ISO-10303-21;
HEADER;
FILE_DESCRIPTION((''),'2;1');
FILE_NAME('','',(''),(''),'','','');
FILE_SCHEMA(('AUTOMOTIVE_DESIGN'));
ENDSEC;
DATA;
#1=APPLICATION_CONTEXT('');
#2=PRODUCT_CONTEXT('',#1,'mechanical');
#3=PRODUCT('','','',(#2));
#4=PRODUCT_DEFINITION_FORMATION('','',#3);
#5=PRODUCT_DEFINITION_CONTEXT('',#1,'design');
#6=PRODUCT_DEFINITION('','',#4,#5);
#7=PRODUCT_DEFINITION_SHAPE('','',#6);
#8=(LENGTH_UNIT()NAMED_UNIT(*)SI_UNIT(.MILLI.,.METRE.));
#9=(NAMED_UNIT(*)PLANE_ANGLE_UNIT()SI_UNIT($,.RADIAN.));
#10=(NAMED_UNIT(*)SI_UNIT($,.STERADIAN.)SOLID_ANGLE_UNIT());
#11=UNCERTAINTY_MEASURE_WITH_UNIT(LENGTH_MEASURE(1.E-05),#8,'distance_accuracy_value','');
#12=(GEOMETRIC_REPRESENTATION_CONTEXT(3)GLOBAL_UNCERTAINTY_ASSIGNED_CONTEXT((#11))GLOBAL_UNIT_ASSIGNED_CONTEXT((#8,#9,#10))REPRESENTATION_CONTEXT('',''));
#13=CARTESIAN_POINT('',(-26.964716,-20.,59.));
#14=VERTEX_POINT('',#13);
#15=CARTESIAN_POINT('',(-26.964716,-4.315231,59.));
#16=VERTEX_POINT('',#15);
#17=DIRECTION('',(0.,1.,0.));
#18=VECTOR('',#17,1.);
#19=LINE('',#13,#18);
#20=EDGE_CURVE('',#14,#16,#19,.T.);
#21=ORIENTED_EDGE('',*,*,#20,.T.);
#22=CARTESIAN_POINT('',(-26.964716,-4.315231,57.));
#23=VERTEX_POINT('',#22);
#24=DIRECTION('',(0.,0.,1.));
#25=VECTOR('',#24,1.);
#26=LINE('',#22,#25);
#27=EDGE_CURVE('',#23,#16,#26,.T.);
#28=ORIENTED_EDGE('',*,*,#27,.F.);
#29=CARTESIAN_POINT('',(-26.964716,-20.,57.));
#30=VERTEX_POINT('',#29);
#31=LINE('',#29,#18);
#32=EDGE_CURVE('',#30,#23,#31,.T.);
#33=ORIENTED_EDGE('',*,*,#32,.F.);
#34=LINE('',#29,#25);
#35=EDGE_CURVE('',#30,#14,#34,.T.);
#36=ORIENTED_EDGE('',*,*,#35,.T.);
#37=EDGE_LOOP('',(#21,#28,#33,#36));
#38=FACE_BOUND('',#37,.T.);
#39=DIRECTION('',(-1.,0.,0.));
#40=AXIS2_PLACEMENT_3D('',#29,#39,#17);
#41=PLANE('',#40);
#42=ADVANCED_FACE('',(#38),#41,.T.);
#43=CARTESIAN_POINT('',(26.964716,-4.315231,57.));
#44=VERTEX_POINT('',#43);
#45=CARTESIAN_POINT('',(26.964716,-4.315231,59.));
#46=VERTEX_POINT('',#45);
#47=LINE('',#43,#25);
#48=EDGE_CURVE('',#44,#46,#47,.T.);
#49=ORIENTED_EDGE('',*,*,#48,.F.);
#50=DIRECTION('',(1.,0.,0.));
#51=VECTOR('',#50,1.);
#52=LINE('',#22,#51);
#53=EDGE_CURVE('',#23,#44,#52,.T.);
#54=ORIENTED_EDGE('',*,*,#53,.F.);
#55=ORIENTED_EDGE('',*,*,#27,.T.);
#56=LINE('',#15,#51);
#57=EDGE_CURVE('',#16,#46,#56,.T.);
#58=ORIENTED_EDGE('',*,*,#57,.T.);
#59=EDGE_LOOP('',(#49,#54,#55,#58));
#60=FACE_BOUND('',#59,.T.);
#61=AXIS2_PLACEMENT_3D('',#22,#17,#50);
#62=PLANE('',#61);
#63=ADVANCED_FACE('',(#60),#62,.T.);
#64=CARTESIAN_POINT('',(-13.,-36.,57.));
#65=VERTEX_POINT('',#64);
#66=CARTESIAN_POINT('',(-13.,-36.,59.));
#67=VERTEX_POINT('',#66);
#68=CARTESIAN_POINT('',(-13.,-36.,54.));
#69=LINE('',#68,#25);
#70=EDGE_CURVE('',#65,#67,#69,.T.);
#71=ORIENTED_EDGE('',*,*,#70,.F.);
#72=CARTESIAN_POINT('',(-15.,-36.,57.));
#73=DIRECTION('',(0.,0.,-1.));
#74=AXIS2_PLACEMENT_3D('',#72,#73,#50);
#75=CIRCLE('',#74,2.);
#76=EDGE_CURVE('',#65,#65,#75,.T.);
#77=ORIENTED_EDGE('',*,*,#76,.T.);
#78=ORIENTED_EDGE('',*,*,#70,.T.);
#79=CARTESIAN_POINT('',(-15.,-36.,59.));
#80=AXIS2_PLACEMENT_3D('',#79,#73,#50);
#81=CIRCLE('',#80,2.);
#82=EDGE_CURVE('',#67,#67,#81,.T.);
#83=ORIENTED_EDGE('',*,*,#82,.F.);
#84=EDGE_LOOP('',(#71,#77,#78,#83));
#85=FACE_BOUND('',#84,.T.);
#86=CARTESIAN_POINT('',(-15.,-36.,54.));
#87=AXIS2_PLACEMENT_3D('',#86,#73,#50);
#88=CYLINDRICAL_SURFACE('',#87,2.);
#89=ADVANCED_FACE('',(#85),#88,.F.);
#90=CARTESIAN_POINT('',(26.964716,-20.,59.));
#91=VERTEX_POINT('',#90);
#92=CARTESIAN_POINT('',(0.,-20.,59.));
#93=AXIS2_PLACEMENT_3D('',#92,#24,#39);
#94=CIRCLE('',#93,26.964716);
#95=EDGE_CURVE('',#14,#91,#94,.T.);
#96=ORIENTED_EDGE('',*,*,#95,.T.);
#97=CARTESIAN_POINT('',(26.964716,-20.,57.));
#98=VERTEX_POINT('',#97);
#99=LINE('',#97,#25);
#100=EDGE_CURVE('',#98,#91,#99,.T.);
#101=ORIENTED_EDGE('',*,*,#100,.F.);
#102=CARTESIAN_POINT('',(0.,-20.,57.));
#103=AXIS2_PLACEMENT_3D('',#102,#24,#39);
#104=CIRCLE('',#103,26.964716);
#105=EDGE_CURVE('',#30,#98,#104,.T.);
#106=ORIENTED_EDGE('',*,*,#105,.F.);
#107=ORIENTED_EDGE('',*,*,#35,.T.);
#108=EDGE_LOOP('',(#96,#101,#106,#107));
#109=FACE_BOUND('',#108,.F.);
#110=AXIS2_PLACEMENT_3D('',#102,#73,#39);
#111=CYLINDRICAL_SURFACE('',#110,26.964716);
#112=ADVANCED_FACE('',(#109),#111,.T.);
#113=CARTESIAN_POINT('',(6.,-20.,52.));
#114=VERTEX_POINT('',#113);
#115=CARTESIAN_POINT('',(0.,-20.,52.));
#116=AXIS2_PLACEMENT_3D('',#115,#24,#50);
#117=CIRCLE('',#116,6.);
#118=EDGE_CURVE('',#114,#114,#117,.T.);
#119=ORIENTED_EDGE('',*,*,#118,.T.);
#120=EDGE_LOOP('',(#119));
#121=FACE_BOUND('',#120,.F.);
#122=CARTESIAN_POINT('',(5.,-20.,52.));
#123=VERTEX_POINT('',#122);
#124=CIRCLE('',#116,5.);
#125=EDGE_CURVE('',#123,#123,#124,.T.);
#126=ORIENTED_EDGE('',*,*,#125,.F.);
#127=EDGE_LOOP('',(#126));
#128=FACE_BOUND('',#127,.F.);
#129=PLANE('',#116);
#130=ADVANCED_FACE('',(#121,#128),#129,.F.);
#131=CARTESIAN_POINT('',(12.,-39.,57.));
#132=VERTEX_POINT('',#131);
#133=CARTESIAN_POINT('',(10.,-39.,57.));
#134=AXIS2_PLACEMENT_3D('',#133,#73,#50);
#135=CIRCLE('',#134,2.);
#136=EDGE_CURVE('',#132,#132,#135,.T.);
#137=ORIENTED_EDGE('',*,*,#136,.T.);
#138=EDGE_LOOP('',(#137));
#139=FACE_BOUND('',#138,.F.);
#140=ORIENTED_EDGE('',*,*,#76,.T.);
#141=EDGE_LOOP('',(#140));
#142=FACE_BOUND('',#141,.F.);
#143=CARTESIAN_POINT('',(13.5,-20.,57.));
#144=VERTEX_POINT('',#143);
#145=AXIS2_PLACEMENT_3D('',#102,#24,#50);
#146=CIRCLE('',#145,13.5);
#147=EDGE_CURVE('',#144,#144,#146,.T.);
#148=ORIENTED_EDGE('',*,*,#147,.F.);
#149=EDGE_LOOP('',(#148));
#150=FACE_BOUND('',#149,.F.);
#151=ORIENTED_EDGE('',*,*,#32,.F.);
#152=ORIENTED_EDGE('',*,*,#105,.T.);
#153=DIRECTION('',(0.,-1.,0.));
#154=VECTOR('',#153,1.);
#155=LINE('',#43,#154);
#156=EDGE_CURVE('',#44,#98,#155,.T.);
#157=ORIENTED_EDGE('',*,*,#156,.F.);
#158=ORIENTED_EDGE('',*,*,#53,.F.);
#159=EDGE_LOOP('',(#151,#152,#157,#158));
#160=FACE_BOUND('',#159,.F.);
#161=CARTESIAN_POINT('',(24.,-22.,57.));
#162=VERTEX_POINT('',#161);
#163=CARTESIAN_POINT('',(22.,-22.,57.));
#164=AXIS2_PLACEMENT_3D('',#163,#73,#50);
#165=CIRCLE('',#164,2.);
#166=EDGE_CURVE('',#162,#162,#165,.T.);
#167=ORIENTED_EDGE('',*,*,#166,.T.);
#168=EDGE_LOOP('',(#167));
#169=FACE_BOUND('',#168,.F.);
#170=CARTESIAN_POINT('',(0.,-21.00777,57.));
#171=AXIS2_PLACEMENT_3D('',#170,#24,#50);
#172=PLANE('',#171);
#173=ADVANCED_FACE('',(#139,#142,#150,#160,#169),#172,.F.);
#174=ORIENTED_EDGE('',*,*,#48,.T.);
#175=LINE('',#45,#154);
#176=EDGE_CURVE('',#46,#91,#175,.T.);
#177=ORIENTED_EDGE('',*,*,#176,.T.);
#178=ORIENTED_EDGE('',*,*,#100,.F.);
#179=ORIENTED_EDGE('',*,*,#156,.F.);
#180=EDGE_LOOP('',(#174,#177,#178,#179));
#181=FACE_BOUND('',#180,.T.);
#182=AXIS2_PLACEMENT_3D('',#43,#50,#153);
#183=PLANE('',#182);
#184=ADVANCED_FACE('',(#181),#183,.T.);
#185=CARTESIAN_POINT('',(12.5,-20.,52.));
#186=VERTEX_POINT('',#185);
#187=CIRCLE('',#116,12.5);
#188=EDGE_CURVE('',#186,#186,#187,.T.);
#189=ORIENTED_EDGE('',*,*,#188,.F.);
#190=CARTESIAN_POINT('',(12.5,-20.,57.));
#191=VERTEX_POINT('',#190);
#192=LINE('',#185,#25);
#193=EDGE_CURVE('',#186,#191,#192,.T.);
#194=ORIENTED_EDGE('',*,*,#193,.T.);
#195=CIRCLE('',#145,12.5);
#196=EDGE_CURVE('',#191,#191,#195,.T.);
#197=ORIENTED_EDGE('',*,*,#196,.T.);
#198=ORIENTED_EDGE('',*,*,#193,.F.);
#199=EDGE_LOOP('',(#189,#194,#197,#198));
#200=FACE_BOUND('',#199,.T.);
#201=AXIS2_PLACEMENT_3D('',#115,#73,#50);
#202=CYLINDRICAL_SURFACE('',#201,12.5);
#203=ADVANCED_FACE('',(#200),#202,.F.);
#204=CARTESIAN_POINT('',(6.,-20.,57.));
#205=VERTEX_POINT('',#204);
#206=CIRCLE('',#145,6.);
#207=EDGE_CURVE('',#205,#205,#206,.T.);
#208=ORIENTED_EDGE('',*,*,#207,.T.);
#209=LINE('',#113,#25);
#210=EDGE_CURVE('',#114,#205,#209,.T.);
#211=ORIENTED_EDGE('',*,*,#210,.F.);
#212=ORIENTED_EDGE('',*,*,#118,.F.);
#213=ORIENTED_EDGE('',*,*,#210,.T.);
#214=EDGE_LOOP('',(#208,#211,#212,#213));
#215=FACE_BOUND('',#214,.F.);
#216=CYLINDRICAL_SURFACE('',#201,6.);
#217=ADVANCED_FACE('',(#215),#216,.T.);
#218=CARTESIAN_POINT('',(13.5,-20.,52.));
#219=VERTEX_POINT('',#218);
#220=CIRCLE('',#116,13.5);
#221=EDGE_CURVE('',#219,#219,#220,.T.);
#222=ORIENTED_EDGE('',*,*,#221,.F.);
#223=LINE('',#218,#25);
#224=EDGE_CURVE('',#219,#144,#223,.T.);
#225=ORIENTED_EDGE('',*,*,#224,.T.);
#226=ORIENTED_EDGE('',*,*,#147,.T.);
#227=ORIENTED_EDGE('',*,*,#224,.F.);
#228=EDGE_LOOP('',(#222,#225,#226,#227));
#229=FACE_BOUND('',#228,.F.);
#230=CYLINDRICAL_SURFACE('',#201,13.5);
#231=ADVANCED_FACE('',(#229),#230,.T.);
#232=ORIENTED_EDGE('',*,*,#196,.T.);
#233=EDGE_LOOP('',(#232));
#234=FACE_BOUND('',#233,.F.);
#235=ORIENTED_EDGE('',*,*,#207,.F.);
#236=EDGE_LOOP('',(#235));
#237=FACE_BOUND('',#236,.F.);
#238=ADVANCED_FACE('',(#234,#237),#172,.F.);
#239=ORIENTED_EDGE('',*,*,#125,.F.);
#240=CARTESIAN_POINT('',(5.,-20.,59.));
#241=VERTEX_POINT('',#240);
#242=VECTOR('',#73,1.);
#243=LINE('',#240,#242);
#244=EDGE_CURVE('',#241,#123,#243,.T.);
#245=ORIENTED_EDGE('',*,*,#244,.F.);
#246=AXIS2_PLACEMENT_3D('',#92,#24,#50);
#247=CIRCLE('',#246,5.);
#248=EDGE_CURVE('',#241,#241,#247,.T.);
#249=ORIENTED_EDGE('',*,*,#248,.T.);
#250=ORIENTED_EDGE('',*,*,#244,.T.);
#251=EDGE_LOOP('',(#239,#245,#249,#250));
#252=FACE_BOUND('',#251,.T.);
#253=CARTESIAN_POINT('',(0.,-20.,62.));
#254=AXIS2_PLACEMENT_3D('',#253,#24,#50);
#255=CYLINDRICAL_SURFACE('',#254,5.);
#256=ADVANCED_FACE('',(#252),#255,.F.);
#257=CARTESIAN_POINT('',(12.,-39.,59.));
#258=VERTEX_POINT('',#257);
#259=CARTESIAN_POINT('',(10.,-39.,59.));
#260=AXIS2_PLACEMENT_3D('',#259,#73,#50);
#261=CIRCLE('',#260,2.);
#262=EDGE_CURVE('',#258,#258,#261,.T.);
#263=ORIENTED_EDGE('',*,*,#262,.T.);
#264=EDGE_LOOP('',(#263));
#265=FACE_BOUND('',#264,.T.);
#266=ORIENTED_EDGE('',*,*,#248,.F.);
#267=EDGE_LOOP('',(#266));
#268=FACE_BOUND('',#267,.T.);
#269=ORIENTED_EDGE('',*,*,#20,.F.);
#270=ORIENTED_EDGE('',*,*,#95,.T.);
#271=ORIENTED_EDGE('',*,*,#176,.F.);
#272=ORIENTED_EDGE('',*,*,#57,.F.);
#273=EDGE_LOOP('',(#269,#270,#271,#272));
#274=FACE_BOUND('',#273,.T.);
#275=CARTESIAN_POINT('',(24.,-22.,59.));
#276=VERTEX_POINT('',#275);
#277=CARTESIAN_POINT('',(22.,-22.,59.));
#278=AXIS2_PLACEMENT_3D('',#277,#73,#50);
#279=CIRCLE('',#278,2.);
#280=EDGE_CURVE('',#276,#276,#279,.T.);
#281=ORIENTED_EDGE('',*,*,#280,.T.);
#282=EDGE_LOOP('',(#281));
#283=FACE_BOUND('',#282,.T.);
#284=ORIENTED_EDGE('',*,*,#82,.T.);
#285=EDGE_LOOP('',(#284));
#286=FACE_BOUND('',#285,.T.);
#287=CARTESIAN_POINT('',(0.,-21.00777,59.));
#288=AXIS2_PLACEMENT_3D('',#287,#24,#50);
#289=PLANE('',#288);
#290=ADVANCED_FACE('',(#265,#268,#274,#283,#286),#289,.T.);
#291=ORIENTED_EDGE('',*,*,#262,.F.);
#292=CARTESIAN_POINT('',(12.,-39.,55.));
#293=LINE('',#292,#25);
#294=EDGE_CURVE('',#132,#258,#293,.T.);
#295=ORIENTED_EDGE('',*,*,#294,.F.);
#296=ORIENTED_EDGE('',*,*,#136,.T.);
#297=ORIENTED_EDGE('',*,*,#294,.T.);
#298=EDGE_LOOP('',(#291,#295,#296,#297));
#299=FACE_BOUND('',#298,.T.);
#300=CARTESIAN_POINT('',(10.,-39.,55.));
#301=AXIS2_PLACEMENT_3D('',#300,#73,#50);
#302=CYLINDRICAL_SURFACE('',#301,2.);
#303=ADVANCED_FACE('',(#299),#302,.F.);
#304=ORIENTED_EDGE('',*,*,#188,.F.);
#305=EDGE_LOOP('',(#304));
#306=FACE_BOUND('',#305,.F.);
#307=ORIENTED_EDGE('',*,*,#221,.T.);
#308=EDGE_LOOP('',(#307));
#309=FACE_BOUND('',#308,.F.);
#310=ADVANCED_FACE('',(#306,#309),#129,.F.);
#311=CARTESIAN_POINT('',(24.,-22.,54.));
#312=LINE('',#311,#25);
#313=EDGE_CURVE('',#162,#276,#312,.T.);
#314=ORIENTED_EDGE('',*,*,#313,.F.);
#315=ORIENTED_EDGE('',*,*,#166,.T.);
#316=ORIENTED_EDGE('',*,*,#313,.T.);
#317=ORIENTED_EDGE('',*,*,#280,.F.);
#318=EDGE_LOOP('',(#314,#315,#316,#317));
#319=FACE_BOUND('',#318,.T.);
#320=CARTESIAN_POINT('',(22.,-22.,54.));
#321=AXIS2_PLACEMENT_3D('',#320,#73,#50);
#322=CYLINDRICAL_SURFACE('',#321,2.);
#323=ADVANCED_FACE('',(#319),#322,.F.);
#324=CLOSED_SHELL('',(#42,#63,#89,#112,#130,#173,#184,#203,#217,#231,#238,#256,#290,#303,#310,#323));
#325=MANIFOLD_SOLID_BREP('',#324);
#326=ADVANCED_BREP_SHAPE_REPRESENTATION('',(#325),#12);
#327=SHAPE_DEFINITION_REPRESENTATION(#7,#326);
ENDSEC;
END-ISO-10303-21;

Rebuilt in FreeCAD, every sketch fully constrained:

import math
import FreeCAD as App
import Part
import Sketcher
from FreeCAD import Vector
Q = App.Units.Quantity

doc = App.newDocument("Part")
params = doc.addObject("Spreadsheet::Sheet", "Params")
for row, (alias, value) in enumerate([
    ("sketch1_diameter", "10 mm"),
    ("pad1_length", "10 mm"),
    ("sketch2_diameter", "4 mm"),
    ("pad2_length", "10 mm"),
    ("sketch3_diameter", "4 mm"),
    ("pad3_length", "10 mm"),
    ("sketch4_diameter", "4 mm"),
    ("pad4_length", "10 mm"),
    ("pad5_length", "2 mm"),
    ("sketch6_diameter", "27 mm"),
    ("sketch6_diameter2", "25 mm"),
    ("sketch6_diameter3", "12 mm"),
    ("sketch6_diameter4", "10 mm"),
    ("pad6_length", "5 mm"),
], start=1):
    params.set(f"A{row}", alias)
    params.set(f"B{row}", "=" + value)
    params.setAlias(f"B{row}", alias)

body = doc.addObject("PartDesign::Body", "Body")

sketch1 = body.newObject("Sketcher::SketchObject", "Sketch")
sketch1.AttachmentSupport = (doc.getObject("XY_Plane"), [""])
sketch1.MapMode = "FlatFace"
sketch1.AttachmentOffset = App.Placement(Vector(0, 0, 62), App.Rotation())
sketch1.addGeometry(Part.Circle(Vector(0, -20, 0), Vector(0, 0, 1), 5), False)
sketch1.addConstraint(Sketcher.Constraint("PointOnObject", 0, 3, -2))
sketch1.addConstraint(Sketcher.Constraint("Diameter", 0, Q("10 mm")))
sketch1.addConstraint(Sketcher.Constraint("DistanceY", 0, 3, -1, 1, Q("20 mm")))
sketch1.setExpression("Constraints[1]", "Params.sketch1_diameter")
pad1 = body.newObject("PartDesign::Pad", "Pad")
pad1.Profile = sketch1
pad1.setExpression("Length", "Params.pad1_length")
pad1.Reversed = True
body2 = doc.addObject("PartDesign::Body", "Body001")

sketch2 = body2.newObject("Sketcher::SketchObject", "Sketch001")
sketch2.AttachmentSupport = (doc.getObject("XY_Plane001"), [""])
sketch2.MapMode = "FlatFace"
sketch2.AttachmentOffset = App.Placement(Vector(0, 0, 55), App.Rotation())
sketch2.addGeometry(Part.Circle(Vector(10, -39, 0), Vector(0, 0, 1), 2), False)
sketch2.addConstraint(Sketcher.Constraint("Diameter", 0, Q("4 mm")))
sketch2.addConstraint(Sketcher.Constraint("DistanceX", -1, 1, 0, 3, Q("10 mm")))
sketch2.addConstraint(Sketcher.Constraint("DistanceY", 0, 3, -1, 1, Q("39 mm")))
sketch2.setExpression("Constraints[0]", "Params.sketch2_diameter")
pad2 = body2.newObject("PartDesign::Pad", "Pad001")
pad2.Profile = sketch2
pad2.setExpression("Length", "Params.pad2_length")
body3 = doc.addObject("PartDesign::Body", "Body002")

sketch3 = body3.newObject("Sketcher::SketchObject", "Sketch002")
sketch3.AttachmentSupport = (doc.getObject("XY_Plane002"), [""])
sketch3.MapMode = "FlatFace"
sketch3.AttachmentOffset = App.Placement(Vector(0, 0, 54), App.Rotation())
sketch3.addGeometry(Part.Circle(Vector(-15, -36, 0), Vector(0, 0, 1), 2), False)
sketch3.addConstraint(Sketcher.Constraint("Diameter", 0, Q("4 mm")))
sketch3.addConstraint(Sketcher.Constraint("DistanceX", 0, 3, -1, 1, Q("15 mm")))
sketch3.addConstraint(Sketcher.Constraint("DistanceY", 0, 3, -1, 1, Q("36 mm")))
sketch3.setExpression("Constraints[0]", "Params.sketch3_diameter")
pad3 = body3.newObject("PartDesign::Pad", "Pad002")
pad3.Profile = sketch3
pad3.setExpression("Length", "Params.pad3_length")
body4 = doc.addObject("PartDesign::Body", "Body003")

sketch4 = body4.newObject("Sketcher::SketchObject", "Sketch003")
sketch4.AttachmentSupport = (doc.getObject("XY_Plane003"), [""])
sketch4.MapMode = "FlatFace"
sketch4.AttachmentOffset = App.Placement(Vector(0, 0, 54), App.Rotation())
sketch4.addGeometry(Part.Circle(Vector(22, -22, 0), Vector(0, 0, 1), 2), False)
sketch4.addConstraint(Sketcher.Constraint("Diameter", 0, Q("4 mm")))
sketch4.addConstraint(Sketcher.Constraint("DistanceX", -1, 1, 0, 3, Q("22 mm")))
sketch4.addConstraint(Sketcher.Constraint("DistanceY", 0, 3, -1, 1, Q("22 mm")))
sketch4.setExpression("Constraints[0]", "Params.sketch4_diameter")
pad4 = body4.newObject("PartDesign::Pad", "Pad003")
pad4.Profile = sketch4
pad4.setExpression("Length", "Params.pad4_length")
body5 = doc.addObject("PartDesign::Body", "Body004")

sketch5 = body5.newObject("Sketcher::SketchObject", "Sketch004")
sketch5.AttachmentSupport = (doc.getObject("XY_Plane004"), [""])
sketch5.MapMode = "FlatFace"
sketch5.AttachmentOffset = App.Placement(Vector(0, 0, 57), App.Rotation())
sketch5.addGeometry(Part.ArcOfCircle(Part.Circle(Vector(0, -20, 0), Vector(0, 0, 1), 27), math.radians(180), math.radians(360)), False)
sketch5.addGeometry(Part.LineSegment(Vector(27, -20, 0), Vector(27, -4, 0)), False)
sketch5.addGeometry(Part.LineSegment(Vector(27, -4, 0), Vector(-27, -4, 0)), False)
sketch5.addGeometry(Part.LineSegment(Vector(-27, -4, 0), Vector(-27, -20, 0)), False)
sketch5.addConstraint(Sketcher.Constraint("Tangent", 0, 2, 1, 1))
sketch5.addConstraint(Sketcher.Constraint("Coincident", 1, 2, 2, 1))
sketch5.addConstraint(Sketcher.Constraint("Coincident", 2, 2, 3, 1))
sketch5.addConstraint(Sketcher.Constraint("Tangent", 3, 2, 0, 1))
sketch5.addConstraint(Sketcher.Constraint("Vertical", 1))
sketch5.addConstraint(Sketcher.Constraint("Horizontal", 2))
sketch5.addConstraint(Sketcher.Constraint("Vertical", 3))
sketch5.addConstraint(Sketcher.Constraint("PointOnObject", 0, 3, -2))
sketch5.addConstraint(Sketcher.Constraint("DistanceY", 0, 3, -1, 1, Q("20 mm")))
sketch5.addConstraint(Sketcher.Constraint("Radius", 0, Q("26.964716 mm")))
sketch5.addConstraint(Sketcher.Constraint("DistanceY", 1, 1, 1, 2, Q("15.684769 mm")))
pad5 = body5.newObject("PartDesign::Pad", "Pad004")
pad5.Profile = sketch5
pad5.setExpression("Length", "Params.pad5_length")
body6 = doc.addObject("PartDesign::Body", "Body005")
body6.AllowCompound = True

sketch6 = body6.newObject("Sketcher::SketchObject", "Sketch005")
sketch6.AttachmentSupport = (doc.getObject("XY_Plane005"), [""])
sketch6.MapMode = "FlatFace"
sketch6.AttachmentOffset = App.Placement(Vector(0, 0, 52), App.Rotation())
sketch6.addGeometry(Part.Circle(Vector(0, -20, 0), Vector(0, 0, 1), 14), False)
sketch6.addGeometry(Part.Circle(Vector(0, -20, 0), Vector(0, 0, 1), 12), False)
sketch6.addGeometry(Part.Circle(Vector(0, -20, 0), Vector(0, 0, 1), 6), False)
sketch6.addGeometry(Part.Circle(Vector(0, -20, 0), Vector(0, 0, 1), 5), False)
sketch6.addConstraint(Sketcher.Constraint("Coincident", 1, 3, 0, 3))
sketch6.addConstraint(Sketcher.Constraint("Coincident", 2, 3, 0, 3))
sketch6.addConstraint(Sketcher.Constraint("Coincident", 3, 3, 0, 3))
sketch6.addConstraint(Sketcher.Constraint("PointOnObject", 0, 3, -2))
sketch6.addConstraint(Sketcher.Constraint("Diameter", 0, Q("27 mm")))
sketch6.addConstraint(Sketcher.Constraint("Diameter", 1, Q("25 mm")))
sketch6.addConstraint(Sketcher.Constraint("Diameter", 2, Q("12 mm")))
sketch6.addConstraint(Sketcher.Constraint("Diameter", 3, Q("10 mm")))
sketch6.addConstraint(Sketcher.Constraint("DistanceY", 0, 3, -1, 1, Q("20 mm")))
sketch6.setExpression("Constraints[4]", "Params.sketch6_diameter")
sketch6.setExpression("Constraints[5]", "Params.sketch6_diameter2")
sketch6.setExpression("Constraints[6]", "Params.sketch6_diameter3")
sketch6.setExpression("Constraints[7]", "Params.sketch6_diameter4")
pad6 = body6.newObject("PartDesign::Pad", "Pad005")
pad6.Profile = sketch6
pad6.setExpression("Length", "Params.pad6_length")
doc.recompute()

boolean = body6.newObject("PartDesign::Boolean", "Boolean")
boolean.Type = "Fuse"
boolean.addObjects([body5])
doc.recompute()

boolean2 = body6.newObject("PartDesign::Boolean", "Boolean001")
boolean2.Type = "Cut"
boolean2.addObjects([body4])
doc.recompute()

boolean3 = body6.newObject("PartDesign::Boolean", "Boolean002")
boolean3.Type = "Cut"
boolean3.addObjects([body3])
doc.recompute()

boolean4 = body6.newObject("PartDesign::Boolean", "Boolean003")
boolean4.Type = "Cut"
boolean4.addObjects([body2])
doc.recompute()

boolean5 = body6.newObject("PartDesign::Boolean", "Boolean004")
boolean5.Type = "Cut"
boolean5.addObjects([body])

doc.recompute()
